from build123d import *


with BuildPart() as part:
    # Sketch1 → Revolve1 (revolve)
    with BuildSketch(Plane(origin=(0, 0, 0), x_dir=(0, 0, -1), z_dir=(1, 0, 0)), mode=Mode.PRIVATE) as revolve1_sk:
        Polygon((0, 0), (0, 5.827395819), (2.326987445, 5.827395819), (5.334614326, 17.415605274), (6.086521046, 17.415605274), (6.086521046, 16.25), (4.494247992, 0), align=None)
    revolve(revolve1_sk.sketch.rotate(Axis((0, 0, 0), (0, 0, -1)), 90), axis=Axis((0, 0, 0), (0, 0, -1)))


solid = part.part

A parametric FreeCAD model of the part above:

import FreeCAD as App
import Part
import Sketcher

V = App.Vector
Q = App.Units.Quantity

doc = App.newDocument("Part")
body = doc.addObject("PartDesign::Body", "Body")

# Sketch on YZ plane
sketch1 = doc.addObject("Sketcher::SketchObject", "Sketch")
body.addObject(sketch1)
sketch1.AttachmentSupport = (doc.YZ_Plane, [""])
sketch1.MapMode = "FlatFace"
sketch1.addGeometry([
    Part.LineSegment(V(5.8, 0, 0), V(0, 0, 0)),  # 0
    Part.LineSegment(V(0, 0, 0), V(0, -4.5, 0)),  # 1
    Part.LineSegment(V(0, -4.5, 0), V(16.2, -6.1, 0)),  # 2
    Part.LineSegment(V(16.2, -6.1, 0), V(17.4, -6.1, 0)),  # 3
    Part.LineSegment(V(17.4, -6.1, 0), V(17.4, -5.3, 0)),  # 4
    Part.LineSegment(V(17.4, -5.3, 0), V(5.8, -2.3, 0)),  # 5
    Part.LineSegment(V(5.8, -2.3, 0), V(5.8, 0, 0)),  # 6
], False)
sketch1.addConstraint([
    Sketcher.Constraint("Coincident", 0, 2, 1, 1),
    Sketcher.Constraint("Coincident", 1, 2, 2, 1),
    Sketcher.Constraint("Coincident", 2, 2, 3, 1),
    Sketcher.Constraint("Coincident", 3, 2, 4, 1),
    Sketcher.Constraint("Coincident", 4, 2, 5, 1),
    Sketcher.Constraint("Coincident", 5, 2, 6, 1),
    Sketcher.Constraint("Coincident", 6, 2, 0, 1),
    Sketcher.Constraint("Horizontal", 0),
    Sketcher.Constraint("Vertical", 1),
    Sketcher.Constraint("Horizontal", 3),
    Sketcher.Constraint("Vertical", 4),
    Sketcher.Constraint("Vertical", 6),
    Sketcher.Constraint("Coincident", 0, 2, -1, 1),
    Sketcher.Constraint("DistanceX", -1, 1, 2, 2, Q("16.25 mm")),
    Sketcher.Constraint("Distance", 5, Q("11.972152 mm")),
    Sketcher.Constraint("DistanceX", 0, 2, 0, 1, Q("5.827396 mm")),
    Sketcher.Constraint("DistanceX", 3, 1, 3, 2, Q("1.165605 mm")),
    Sketcher.Constraint("DistanceY", 1, 2, 1, 1, Q("4.494248 mm")),
    Sketcher.Constraint("DistanceY", 4, 1, 4, 2, Q("0.751907 mm")),
    Sketcher.Constraint("DistanceY", 6, 1, 6, 2, Q("2.326987 mm")),
])
revolution = doc.addObject("PartDesign::Revolution", "Revolution")
body.addObject(revolution)
revolution.Profile = sketch1
revolution.ReferenceAxis = (sketch1, ["V_Axis"])
revolution.Angle = 360

doc.recompute()
